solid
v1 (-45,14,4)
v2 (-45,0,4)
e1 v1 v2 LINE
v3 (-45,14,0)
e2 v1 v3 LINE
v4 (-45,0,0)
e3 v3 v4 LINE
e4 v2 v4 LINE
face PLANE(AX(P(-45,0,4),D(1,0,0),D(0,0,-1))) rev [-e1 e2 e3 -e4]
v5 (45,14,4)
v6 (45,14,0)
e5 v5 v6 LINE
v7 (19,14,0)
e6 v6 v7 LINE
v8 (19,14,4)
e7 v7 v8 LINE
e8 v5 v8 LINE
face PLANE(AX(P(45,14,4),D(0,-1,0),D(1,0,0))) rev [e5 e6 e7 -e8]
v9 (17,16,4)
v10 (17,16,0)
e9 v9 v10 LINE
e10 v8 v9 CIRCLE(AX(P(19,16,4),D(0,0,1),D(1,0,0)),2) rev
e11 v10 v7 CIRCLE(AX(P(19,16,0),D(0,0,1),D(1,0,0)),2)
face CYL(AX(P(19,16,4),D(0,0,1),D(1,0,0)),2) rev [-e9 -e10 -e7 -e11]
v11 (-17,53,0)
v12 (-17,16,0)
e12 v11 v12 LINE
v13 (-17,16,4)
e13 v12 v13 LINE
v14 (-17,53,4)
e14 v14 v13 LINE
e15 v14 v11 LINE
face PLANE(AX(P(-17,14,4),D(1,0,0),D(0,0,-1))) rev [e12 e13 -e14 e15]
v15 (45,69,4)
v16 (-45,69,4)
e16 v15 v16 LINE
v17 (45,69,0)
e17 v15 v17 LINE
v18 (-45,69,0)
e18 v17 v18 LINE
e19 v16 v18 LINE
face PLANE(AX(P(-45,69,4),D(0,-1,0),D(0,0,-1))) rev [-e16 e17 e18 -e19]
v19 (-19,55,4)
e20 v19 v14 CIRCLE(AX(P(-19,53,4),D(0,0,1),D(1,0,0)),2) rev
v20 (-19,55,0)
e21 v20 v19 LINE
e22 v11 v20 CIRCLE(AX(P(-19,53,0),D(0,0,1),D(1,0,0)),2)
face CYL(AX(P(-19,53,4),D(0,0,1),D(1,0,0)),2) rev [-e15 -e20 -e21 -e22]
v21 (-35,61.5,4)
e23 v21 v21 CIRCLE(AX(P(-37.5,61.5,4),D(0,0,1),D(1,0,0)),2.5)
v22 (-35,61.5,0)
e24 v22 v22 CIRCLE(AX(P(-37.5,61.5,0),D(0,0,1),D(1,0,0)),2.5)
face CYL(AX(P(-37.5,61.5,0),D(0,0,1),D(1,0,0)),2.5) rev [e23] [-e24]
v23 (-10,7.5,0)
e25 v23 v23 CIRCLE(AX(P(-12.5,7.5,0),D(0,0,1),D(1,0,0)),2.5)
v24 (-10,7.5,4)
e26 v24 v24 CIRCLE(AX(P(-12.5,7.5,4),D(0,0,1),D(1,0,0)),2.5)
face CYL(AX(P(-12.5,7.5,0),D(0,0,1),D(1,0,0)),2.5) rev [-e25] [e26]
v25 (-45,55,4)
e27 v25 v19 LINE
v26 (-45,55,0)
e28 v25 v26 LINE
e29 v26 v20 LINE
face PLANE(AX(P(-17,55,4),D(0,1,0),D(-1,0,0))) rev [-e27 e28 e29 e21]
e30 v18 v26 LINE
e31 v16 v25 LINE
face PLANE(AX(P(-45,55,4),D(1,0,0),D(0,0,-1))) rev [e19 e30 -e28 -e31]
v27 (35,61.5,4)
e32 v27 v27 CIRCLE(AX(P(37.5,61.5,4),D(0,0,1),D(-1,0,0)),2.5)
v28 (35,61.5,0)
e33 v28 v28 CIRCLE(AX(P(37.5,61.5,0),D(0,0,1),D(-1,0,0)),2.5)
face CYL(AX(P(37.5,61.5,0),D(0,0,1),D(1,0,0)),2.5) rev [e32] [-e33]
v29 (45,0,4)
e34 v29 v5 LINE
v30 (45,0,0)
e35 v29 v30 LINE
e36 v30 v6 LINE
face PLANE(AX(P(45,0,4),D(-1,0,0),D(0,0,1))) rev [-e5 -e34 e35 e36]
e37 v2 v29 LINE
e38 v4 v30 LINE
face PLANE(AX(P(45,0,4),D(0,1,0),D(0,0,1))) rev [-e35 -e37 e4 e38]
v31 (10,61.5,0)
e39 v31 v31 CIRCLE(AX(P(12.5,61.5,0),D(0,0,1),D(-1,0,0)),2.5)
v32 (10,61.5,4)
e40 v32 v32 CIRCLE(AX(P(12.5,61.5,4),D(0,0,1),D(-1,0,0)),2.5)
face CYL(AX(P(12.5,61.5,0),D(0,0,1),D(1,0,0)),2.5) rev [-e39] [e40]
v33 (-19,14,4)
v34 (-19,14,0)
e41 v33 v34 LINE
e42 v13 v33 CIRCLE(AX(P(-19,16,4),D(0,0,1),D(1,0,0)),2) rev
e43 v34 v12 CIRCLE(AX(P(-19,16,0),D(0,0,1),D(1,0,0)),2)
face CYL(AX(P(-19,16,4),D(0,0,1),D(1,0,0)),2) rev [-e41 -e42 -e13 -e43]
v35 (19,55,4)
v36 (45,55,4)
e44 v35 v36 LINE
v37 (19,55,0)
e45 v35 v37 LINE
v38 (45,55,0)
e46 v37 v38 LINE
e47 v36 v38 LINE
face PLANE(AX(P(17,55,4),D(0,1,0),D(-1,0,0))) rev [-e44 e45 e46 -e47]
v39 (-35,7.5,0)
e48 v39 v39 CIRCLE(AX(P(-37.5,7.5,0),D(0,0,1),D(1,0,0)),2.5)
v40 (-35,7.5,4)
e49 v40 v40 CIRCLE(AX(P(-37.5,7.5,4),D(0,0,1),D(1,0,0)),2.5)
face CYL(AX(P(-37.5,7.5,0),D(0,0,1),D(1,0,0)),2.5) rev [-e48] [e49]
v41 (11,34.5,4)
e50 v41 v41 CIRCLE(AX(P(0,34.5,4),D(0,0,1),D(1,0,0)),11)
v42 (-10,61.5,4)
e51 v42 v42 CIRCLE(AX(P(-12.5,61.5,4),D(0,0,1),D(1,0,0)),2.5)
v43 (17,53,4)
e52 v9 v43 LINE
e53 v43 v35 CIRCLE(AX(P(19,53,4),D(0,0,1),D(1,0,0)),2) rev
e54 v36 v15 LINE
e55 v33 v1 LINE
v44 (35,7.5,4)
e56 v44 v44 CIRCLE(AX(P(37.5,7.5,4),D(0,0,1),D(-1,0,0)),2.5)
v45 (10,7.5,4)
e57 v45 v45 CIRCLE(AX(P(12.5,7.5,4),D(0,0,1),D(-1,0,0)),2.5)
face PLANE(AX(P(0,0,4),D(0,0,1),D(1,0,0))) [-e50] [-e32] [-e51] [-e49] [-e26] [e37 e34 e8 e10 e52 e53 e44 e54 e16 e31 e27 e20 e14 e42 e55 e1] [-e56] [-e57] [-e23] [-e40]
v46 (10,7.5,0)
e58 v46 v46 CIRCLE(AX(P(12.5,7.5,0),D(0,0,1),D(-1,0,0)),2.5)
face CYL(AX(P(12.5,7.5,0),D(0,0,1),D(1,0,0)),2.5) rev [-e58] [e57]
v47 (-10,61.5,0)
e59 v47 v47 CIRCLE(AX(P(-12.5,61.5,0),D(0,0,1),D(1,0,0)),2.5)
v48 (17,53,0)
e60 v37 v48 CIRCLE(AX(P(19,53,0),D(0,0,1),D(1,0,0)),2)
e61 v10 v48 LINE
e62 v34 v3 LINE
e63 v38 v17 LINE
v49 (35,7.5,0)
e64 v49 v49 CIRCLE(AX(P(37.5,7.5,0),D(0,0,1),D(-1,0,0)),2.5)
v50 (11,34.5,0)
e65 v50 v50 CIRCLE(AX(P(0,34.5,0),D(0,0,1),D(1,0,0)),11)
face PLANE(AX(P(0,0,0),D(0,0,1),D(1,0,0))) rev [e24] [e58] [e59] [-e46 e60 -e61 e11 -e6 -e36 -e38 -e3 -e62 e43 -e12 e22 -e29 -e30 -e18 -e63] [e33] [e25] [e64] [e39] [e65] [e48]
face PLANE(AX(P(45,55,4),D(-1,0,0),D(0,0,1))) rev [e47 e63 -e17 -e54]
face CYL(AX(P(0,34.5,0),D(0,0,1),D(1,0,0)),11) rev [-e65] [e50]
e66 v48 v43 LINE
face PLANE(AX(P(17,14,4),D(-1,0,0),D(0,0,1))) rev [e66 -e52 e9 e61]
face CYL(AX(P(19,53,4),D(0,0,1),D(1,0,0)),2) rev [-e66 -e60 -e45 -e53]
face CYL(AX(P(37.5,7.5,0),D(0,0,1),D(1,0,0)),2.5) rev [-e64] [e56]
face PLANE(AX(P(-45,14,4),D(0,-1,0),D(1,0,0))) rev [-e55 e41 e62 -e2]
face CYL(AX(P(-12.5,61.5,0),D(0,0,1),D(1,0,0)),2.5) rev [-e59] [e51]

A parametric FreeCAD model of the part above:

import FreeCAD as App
import Part
import Sketcher


def edges_at(feature, points):
    """Names of the edges that pass closest to the given points."""
    edges = feature.Shape.Edges
    near = lambda p: min(range(len(edges)), key=lambda i: edges[i].distToShape(Part.Vertex(*p))[0])
    return sorted({f"Edge{near(p) + 1}" for p in points})


def add_polygon(sketch, points):
    """Adds a closed chain of lines whose ends are joined by coincident constraints."""
    first, n = sketch.GeometryCount, len(points)
    for a, b in zip(points, points[1:] + points[:1]):
        sketch.addGeometry(Part.LineSegment(App.Vector(*a, 0), App.Vector(*b, 0)), False)
    for i in range(n):
        sketch.addConstraint(Sketcher.Constraint("Coincident", first + i, 2, first + (i + 1) % n, 1))

doc = App.newDocument("Part")
body = doc.addObject("PartDesign::Body", "Body")

# Sketch on XY plane
sketch1 = doc.addObject("Sketcher::SketchObject", "Sketch")
body.addObject(sketch1)
sketch1.AttachmentSupport = (doc.XY_Plane, [""])
sketch1.MapMode = "FlatFace"
add_polygon(sketch1, [(-45, 0), (45, 0), (45, 14), (17, 14), (17, 55), (45, 55), (45, 69), (-45, 69), (-45, 55), (-17, 55), (-17, 14), (-45, 14)])  # lines 0-11
sketch1.addConstraint(Sketcher.Constraint("Horizontal", 0))
sketch1.addConstraint(Sketcher.Constraint("Vertical", 1))
sketch1.addConstraint(Sketcher.Constraint("Horizontal", 2))
sketch1.addConstraint(Sketcher.Constraint("Vertical", 3))
sketch1.addConstraint(Sketcher.Constraint("Horizontal", 4))
sketch1.addConstraint(Sketcher.Constraint("Vertical", 5))
sketch1.addConstraint(Sketcher.Constraint("Horizontal", 6))
sketch1.addConstraint(Sketcher.Constraint("Vertical", 7))
sketch1.addConstraint(Sketcher.Constraint("Horizontal", 8))
sketch1.addConstraint(Sketcher.Constraint("Vertical", 9))
sketch1.addConstraint(Sketcher.Constraint("Horizontal", 10))
sketch1.addConstraint(Sketcher.Constraint("Vertical", 11))
sketch1.addConstraint(Sketcher.Constraint("Symmetric", 0, 2, 11, 2, -1, 1))
sketch1.addConstraint(Sketcher.Constraint("Symmetric", 4, 2, 7, 2, -2))
sketch1.addConstraint(Sketcher.Constraint("Symmetric", 2, 2, 9, 2, -2))
sketch1.addConstraint(Sketcher.Constraint("Vertical", 1, 2, 4, 2))
sketch1.addConstraint(Sketcher.Constraint("Equal", 1, 5))
sketch1.addConstraint(Sketcher.Constraint("DistanceX", 0, 1, 0, 2, 90.0))
sketch1.addConstraint(Sketcher.Constraint("DistanceX", 2, 2, 2, 1, 28.0))
sketch1.addConstraint(Sketcher.Constraint("DistanceY", 1, 1, 1, 2, 14.0))
sketch1.addConstraint(Sketcher.Constraint("DistanceY", 3, 1, 3, 2, 41.0))
pad1 = doc.addObject("PartDesign::Pad", "Pad")
body.addObject(pad1)
pad1.Profile = sketch1
pad1.Length = 4
doc.recompute()

fillet = doc.addObject("PartDesign::Fillet", "Fillet")
body.addObject(fillet)
fillet.Base = (pad1, edges_at(pad1, [
    (-17, 14, 2),
    (-17, 55, 2),
    (17, 55, 2),
    (17, 14, 2),
]))
fillet.Radius = 2

# Sketch on XY plane
sketch2 = doc.addObject("Sketcher::SketchObject", "Sketch001")
body.addObject(sketch2)
sketch2.AttachmentSupport = (doc.XY_Plane, [""])
sketch2.MapMode = "FlatFace"
sketch2.AttachmentOffset = App.Placement(App.Vector(0, 0, 4), App.Rotation())
sketch2.addGeometry(Part.Circle(App.Vector(-37.5, 61.5, 0), App.Vector(0, 0, 1), 2.5), False)
sketch2.addGeometry(Part.Circle(App.Vector(37.5, 61.5, 0), App.Vector(0, 0, 1), 2.5), False)
sketch2.addGeometry(Part.Circle(App.Vector(-12.5, 61.5, 0), App.Vector(0, 0, 1), 2.5), False)
sketch2.addGeometry(Part.Circle(App.Vector(12.5, 61.5, 0), App.Vector(0, 0, 1), 2.5), False)
sketch2.addGeometry(Part.Circle(App.Vector(-37.5, 7.5, 0), App.Vector(0, 0, 1), 2.5), False)
sketch2.addGeometry(Part.Circle(App.Vector(37.5, 7.5, 0), App.Vector(0, 0, 1), 2.5), False)
sketch2.addGeometry(Part.Circle(App.Vector(-12.5, 7.5, 0), App.Vector(0, 0, 1), 2.5), False)
sketch2.addGeometry(Part.Circle(App.Vector(12.5, 7.5, 0), App.Vector(0, 0, 1), 2.5), False)
sketch2.addConstraint(Sketcher.Constraint("Equal", 0, 1))
sketch2.addConstraint(Sketcher.Constraint("Equal", 1, 2))
sketch2.addConstraint(Sketcher.Constraint("Equal", 2, 3))
sketch2.addConstraint(Sketcher.Constraint("Equal", 3, 4))
sketch2.addConstraint(Sketcher.Constraint("Equal", 4, 5))
sketch2.addConstraint(Sketcher.Constraint("Equal", 5, 6))
sketch2.addConstraint(Sketcher.Constraint("Equal", 6, 7))
sketch2.addConstraint(Sketcher.Constraint("Symmetric", 0, 3, 1, 3, -2))
sketch2.addConstraint(Sketcher.Constraint("Symmetric", 2, 3, 3, 3, -2))
sketch2.addConstraint(Sketcher.Constraint("Symmetric", 4, 3, 5, 3, -2))
sketch2.addConstraint(Sketcher.Constraint("Symmetric", 6, 3, 7, 3, -2))
sketch2.addConstraint(Sketcher.Constraint("Horizontal", 1, 3, 2, 3))
sketch2.addConstraint(Sketcher.Constraint("Horizontal", 5, 3, 6, 3))
sketch2.addConstraint(Sketcher.Constraint("Vertical", 0, 3, 4, 3))
sketch2.addConstraint(Sketcher.Constraint("Vertical", 2, 3, 6, 3))
sketch2.addConstraint(Sketcher.Constraint("Diameter", 0, 5.0))
sketch2.addConstraint(Sketcher.Constraint("DistanceX", 0, 3, 1, 3, 75.0))
sketch2.addConstraint(Sketcher.Constraint("DistanceX", 0, 3, 2, 3, 25.0))
sketch2.addConstraint(Sketcher.Constraint("DistanceY", 4, 3, 0, 3, 54.0))
sketch2.addConstraint(Sketcher.Constraint("DistanceY", -1, 1, 0, 3, 61.5))
pocket1 = doc.addObject("PartDesign::Pocket", "Pocket")
body.addObject(pocket1)
pocket1.Profile = sketch2
pocket1.Type = "ThroughAll"

# Sketch on XY plane
sketch3 = doc.addObject("Sketcher::SketchObject", "Sketch002")
body.addObject(sketch3)
sketch3.AttachmentSupport = (doc.XY_Plane, [""])
sketch3.MapMode = "FlatFace"
sketch3.AttachmentOffset = App.Placement(App.Vector(0, 0, 4), App.Rotation())
sketch3.addGeometry(Part.Circle(App.Vector(0, 34, 0), App.Vector(0, 0, 1), 11), False)
sketch3.addConstraint(Sketcher.Constraint("PointOnObject", 0, 3, -2))
sketch3.addConstraint(Sketcher.Constraint("Diameter", 0, 22.0))
sketch3.addConstraint(Sketcher.Constraint("DistanceY", -1, 1, 0, 3, 34.5))
pocket2 = doc.addObject("PartDesign::Pocket", "Pocket001")
body.addObject(pocket2)
pocket2.Profile = sketch3
pocket2.Type = "ThroughAll"

doc.recompute()
